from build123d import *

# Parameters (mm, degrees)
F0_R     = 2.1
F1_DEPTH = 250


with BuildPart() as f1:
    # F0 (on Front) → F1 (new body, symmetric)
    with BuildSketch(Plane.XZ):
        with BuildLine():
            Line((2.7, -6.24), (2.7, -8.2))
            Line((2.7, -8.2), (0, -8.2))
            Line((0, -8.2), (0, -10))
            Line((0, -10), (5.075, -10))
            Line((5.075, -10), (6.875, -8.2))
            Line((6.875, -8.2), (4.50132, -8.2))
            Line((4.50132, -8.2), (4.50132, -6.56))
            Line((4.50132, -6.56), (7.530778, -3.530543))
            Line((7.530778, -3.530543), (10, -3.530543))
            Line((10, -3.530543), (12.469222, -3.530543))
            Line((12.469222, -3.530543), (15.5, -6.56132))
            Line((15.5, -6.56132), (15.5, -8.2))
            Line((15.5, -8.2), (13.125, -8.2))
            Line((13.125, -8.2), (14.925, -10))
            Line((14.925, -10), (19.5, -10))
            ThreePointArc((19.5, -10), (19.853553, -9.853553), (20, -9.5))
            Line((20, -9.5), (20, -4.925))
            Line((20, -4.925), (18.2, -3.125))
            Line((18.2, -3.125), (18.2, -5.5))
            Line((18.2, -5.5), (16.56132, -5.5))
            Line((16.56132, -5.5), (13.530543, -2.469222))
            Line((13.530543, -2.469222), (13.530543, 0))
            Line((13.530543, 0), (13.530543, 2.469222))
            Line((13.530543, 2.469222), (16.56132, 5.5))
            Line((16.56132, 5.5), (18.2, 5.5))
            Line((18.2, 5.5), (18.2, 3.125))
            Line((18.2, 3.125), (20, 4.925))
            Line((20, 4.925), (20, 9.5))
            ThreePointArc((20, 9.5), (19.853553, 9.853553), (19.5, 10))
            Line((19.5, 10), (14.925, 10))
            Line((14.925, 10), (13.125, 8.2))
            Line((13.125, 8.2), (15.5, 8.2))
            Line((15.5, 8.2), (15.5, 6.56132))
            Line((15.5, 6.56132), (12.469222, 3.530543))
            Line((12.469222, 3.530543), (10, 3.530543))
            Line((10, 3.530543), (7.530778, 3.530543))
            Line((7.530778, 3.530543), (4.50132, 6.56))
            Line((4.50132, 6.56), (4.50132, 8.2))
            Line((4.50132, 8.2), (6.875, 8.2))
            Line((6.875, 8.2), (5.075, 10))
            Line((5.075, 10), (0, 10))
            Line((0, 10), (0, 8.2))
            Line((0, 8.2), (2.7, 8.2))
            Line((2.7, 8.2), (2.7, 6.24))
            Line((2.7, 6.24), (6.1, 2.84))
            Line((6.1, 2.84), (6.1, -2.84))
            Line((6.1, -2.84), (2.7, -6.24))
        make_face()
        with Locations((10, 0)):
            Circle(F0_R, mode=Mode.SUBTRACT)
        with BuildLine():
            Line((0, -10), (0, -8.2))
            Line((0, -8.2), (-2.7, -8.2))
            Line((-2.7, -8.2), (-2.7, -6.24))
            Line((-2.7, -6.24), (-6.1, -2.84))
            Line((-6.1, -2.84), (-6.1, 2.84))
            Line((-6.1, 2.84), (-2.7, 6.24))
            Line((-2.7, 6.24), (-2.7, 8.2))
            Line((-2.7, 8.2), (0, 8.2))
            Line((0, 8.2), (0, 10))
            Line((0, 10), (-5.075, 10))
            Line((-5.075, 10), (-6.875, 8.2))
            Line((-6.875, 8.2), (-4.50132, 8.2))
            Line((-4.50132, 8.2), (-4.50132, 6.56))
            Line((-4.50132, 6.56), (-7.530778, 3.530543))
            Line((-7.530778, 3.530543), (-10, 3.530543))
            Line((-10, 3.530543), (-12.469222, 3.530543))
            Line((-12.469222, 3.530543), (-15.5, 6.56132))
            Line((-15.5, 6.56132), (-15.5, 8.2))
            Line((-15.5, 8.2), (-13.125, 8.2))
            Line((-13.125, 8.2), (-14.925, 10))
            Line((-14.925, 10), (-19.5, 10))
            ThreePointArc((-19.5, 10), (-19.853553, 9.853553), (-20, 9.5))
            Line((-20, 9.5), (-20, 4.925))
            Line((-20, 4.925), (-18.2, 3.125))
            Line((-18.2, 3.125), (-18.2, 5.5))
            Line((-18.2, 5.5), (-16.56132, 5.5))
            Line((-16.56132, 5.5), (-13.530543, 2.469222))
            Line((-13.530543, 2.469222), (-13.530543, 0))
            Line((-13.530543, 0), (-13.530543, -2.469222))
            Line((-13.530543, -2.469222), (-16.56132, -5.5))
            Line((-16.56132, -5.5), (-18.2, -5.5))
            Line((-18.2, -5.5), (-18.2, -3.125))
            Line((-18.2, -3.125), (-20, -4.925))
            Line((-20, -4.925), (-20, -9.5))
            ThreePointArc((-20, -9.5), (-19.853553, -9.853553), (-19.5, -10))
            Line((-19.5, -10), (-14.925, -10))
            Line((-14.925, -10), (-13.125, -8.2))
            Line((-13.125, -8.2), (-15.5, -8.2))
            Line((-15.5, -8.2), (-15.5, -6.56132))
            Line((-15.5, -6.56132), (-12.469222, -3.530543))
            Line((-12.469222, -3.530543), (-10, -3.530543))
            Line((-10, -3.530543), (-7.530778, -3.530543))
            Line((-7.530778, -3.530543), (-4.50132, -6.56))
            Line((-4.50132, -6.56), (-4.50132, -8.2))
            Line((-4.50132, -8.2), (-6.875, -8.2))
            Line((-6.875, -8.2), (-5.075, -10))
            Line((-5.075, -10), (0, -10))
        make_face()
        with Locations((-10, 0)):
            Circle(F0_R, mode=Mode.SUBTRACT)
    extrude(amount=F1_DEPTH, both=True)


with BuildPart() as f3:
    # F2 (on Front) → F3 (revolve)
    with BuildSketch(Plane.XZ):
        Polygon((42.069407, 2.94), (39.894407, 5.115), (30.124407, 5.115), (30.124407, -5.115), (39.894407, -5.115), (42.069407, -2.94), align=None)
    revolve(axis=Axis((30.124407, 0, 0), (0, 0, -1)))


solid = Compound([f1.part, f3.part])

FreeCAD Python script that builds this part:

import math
import FreeCAD as App
import Part
import Sketcher
Q = App.Units.Quantity


def add_polygon(sketch, points):
    """Adds a closed chain of lines whose ends are joined by coincident constraints."""
    first, n = sketch.GeometryCount, len(points)
    for a, b in zip(points, points[1:] + points[:1]):
        sketch.addGeometry(Part.LineSegment(App.Vector(*a, 0), App.Vector(*b, 0)), False)
    for i in range(n):
        sketch.addConstraint(Sketcher.Constraint("Coincident", first + i, 2, first + (i + 1) % n, 1))

doc = App.newDocument("Part")
body = doc.addObject("PartDesign::Body", "Body")

# Sketch on XZ plane
sketch1 = body.newObject("Sketcher::SketchObject", "Sketch")
sketch1.AttachmentSupport = (doc.getObject("XZ_Plane"), [""])
sketch1.MapMode = "FlatFace"
sketch1.addGeometry(Part.LineSegment(App.Vector(5.1, -10, 0), App.Vector(6.9, -8.2, 0)), False)  # 0
sketch1.addGeometry(Part.LineSegment(App.Vector(6.9, -8.2, 0), App.Vector(4.5, -8.2, 0)), False)  # 1
sketch1.addGeometry(Part.LineSegment(App.Vector(4.5, -8.2, 0), App.Vector(4.5, -6.6, 0)), False)  # 2
sketch1.addGeometry(Part.LineSegment(App.Vector(4.5, -6.6, 0), App.Vector(7.5, -3.5, 0)), False)  # 3
sketch1.addGeometry(Part.LineSegment(App.Vector(7.5, -3.5, 0), App.Vector(12.5, -3.5, 0)), False)  # 4
sketch1.addGeometry(Part.LineSegment(App.Vector(12.5, -3.5, 0), App.Vector(15.5, -6.6, 0)), False)  # 5
sketch1.addGeometry(Part.LineSegment(App.Vector(15.5, -6.6, 0), App.Vector(15.5, -8.2, 0)), False)  # 6
sketch1.addGeometry(Part.LineSegment(App.Vector(15.5, -8.2, 0), App.Vector(13.1, -8.2, 0)), False)  # 7
sketch1.addGeometry(Part.LineSegment(App.Vector(13.1, -8.2, 0), App.Vector(14.9, -10, 0)), False)  # 8
sketch1.addGeometry(Part.LineSegment(App.Vector(14.9, -10, 0), App.Vector(19.5, -10, 0)), False)  # 9
sketch1.addGeometry(Part.ArcOfCircle(Part.Circle(App.Vector(19.5, -9.5, 0), App.Vector(0, 0, 1), 0.5), math.radians(-90), math.radians(0)), False)  # 10
sketch1.addGeometry(Part.LineSegment(App.Vector(20, -9.5, 0), App.Vector(20, -4.9, 0)), False)  # 11
sketch1.addGeometry(Part.LineSegment(App.Vector(20, -4.9, 0), App.Vector(18.2, -3.1, 0)), False)  # 12
sketch1.addGeometry(Part.LineSegment(App.Vector(18.2, -3.1, 0), App.Vector(18.2, -5.5, 0)), False)  # 13
sketch1.addGeometry(Part.LineSegment(App.Vector(18.2, -5.5, 0), App.Vector(16.6, -5.5, 0)), False)  # 14
sketch1.addGeometry(Part.LineSegment(App.Vector(16.6, -5.5, 0), App.Vector(13.5, -2.5, 0)), False)  # 15
sketch1.addGeometry(Part.LineSegment(App.Vector(13.5, -2.5, 0), App.Vector(13.5, 2.5, 0)), False)  # 16
sketch1.addGeometry(Part.LineSegment(App.Vector(13.5, 2.5, 0), App.Vector(16.6, 5.5, 0)), False)  # 17
sketch1.addGeometry(Part.LineSegment(App.Vector(16.6, 5.5, 0), App.Vector(18.2, 5.5, 0)), False)  # 18
sketch1.addGeometry(Part.LineSegment(App.Vector(18.2, 5.5, 0), App.Vector(18.2, 3.1, 0)), False)  # 19
sketch1.addGeometry(Part.LineSegment(App.Vector(18.2, 3.1, 0), App.Vector(20, 4.9, 0)), False)  # 20
sketch1.addGeometry(Part.LineSegment(App.Vector(20, 4.9, 0), App.Vector(20, 9.5, 0)), False)  # 21
sketch1.addGeometry(Part.ArcOfCircle(Part.Circle(App.Vector(19.5, 9.5, 0), App.Vector(0, 0, 1), 0.5), math.radians(0), math.radians(90)), False)  # 22
sketch1.addGeometry(Part.LineSegment(App.Vector(19.5, 10, 0), App.Vector(14.9, 10, 0)), False)  # 23
sketch1.addGeometry(Part.LineSegment(App.Vector(14.9, 10, 0), App.Vector(13.1, 8.2, 0)), False)  # 24
sketch1.addGeometry(Part.LineSegment(App.Vector(13.1, 8.2, 0), App.Vector(15.5, 8.2, 0)), False)  # 25
sketch1.addGeometry(Part.LineSegment(App.Vector(15.5, 8.2, 0), App.Vector(15.5, 6.6, 0)), False)  # 26
sketch1.addGeometry(Part.LineSegment(App.Vector(15.5, 6.6, 0), App.Vector(12.5, 3.5, 0)), False)  # 27
sketch1.addGeometry(Part.LineSegment(App.Vector(12.5, 3.5, 0), App.Vector(7.5, 3.5, 0)), False)  # 28
sketch1.addGeometry(Part.LineSegment(App.Vector(7.5, 3.5, 0), App.Vector(4.5, 6.6, 0)), False)  # 29
sketch1.addGeometry(Part.LineSegment(App.Vector(4.5, 6.6, 0), App.Vector(4.5, 8.2, 0)), False)  # 30
sketch1.addGeometry(Part.LineSegment(App.Vector(4.5, 8.2, 0), App.Vector(6.9, 8.2, 0)), False)  # 31
sketch1.addGeometry(Part.LineSegment(App.Vector(6.9, 8.2, 0), App.Vector(5.1, 10, 0)), False)  # 32
sketch1.addGeometry(Part.LineSegment(App.Vector(5.1, 10, 0), App.Vector(-5.1, 10, 0)), False)  # 33
sketch1.addGeometry(Part.LineSegment(App.Vector(-5.1, 10, 0), App.Vector(-6.9, 8.2, 0)), False)  # 34
sketch1.addGeometry(Part.LineSegment(App.Vector(-6.9, 8.2, 0), App.Vector(-4.5, 8.2, 0)), False)  # 35
sketch1.addGeometry(Part.LineSegment(App.Vector(-4.5, 8.2, 0), App.Vector(-4.5, 6.6, 0)), False)  # 36
sketch1.addGeometry(Part.LineSegment(App.Vector(-4.5, 6.6, 0), App.Vector(-7.5, 3.5, 0)), False)  # 37
sketch1.addGeometry(Part.LineSegment(App.Vector(-7.5, 3.5, 0), App.Vector(-12.5, 3.5, 0)), False)  # 38
sketch1.addGeometry(Part.LineSegment(App.Vector(-12.5, 3.5, 0), App.Vector(-15.5, 6.6, 0)), False)  # 39
sketch1.addGeometry(Part.LineSegment(App.Vector(-15.5, 6.6, 0), App.Vector(-15.5, 8.2, 0)), False)  # 40
sketch1.addGeometry(Part.LineSegment(App.Vector(-15.5, 8.2, 0), App.Vector(-13.1, 8.2, 0)), False)  # 41
sketch1.addGeometry(Part.LineSegment(App.Vector(-13.1, 8.2, 0), App.Vector(-14.9, 10, 0)), False)  # 42
sketch1.addGeometry(Part.LineSegment(App.Vector(-14.9, 10, 0), App.Vector(-19.5, 10, 0)), False)  # 43
sketch1.addGeometry(Part.ArcOfCircle(Part.Circle(App.Vector(-19.5, 9.5, 0), App.Vector(0, 0, 1), 0.5), math.radians(90), math.radians(180)), False)  # 44
sketch1.addGeometry(Part.LineSegment(App.Vector(-20, 9.5, 0), App.Vector(-20, 4.9, 0)), False)  # 45
sketch1.addGeometry(Part.LineSegment(App.Vector(-20, 4.9, 0), App.Vector(-18.2, 3.1, 0)), False)  # 46
sketch1.addGeometry(Part.LineSegment(App.Vector(-18.2, 3.1, 0), App.Vector(-18.2, 5.5, 0)), False)  # 47
sketch1.addGeometry(Part.LineSegment(App.Vector(-18.2, 5.5, 0), App.Vector(-16.6, 5.5, 0)), False)  # 48
sketch1.addGeometry(Part.LineSegment(App.Vector(-16.6, 5.5, 0), App.Vector(-13.5, 2.5, 0)), False)  # 49
sketch1.addGeometry(Part.LineSegment(App.Vector(-13.5, 2.5, 0), App.Vector(-13.5, -2.5, 0)), False)  # 50
sketch1.addGeometry(Part.LineSegment(App.Vector(-13.5, -2.5, 0), App.Vector(-16.6, -5.5, 0)), False)  # 51
sketch1.addGeometry(Part.LineSegment(App.Vector(-16.6, -5.5, 0), App.Vector(-18.2, -5.5, 0)), False)  # 52
sketch1.addGeometry(Part.LineSegment(App.Vector(-18.2, -5.5, 0), App.Vector(-18.2, -3.1, 0)), False)  # 53
sketch1.addGeometry(Part.LineSegment(App.Vector(-18.2, -3.1, 0), App.Vector(-20, -4.9, 0)), False)  # 54
sketch1.addGeometry(Part.LineSegment(App.Vector(-20, -4.9, 0), App.Vector(-20, -9.5, 0)), False)  # 55
sketch1.addGeometry(Part.ArcOfCircle(Part.Circle(App.Vector(-19.5, -9.5, 0), App.Vector(0, 0, 1), 0.5), math.radians(-180), math.radians(-90)), False)  # 56
sketch1.addGeometry(Part.LineSegment(App.Vector(-19.5, -10, 0), App.Vector(-14.9, -10, 0)), False)  # 57
sketch1.addGeometry(Part.LineSegment(App.Vector(-14.9, -10, 0), App.Vector(-13.1, -8.2, 0)), False)  # 58
sketch1.addGeometry(Part.LineSegment(App.Vector(-13.1, -8.2, 0), App.Vector(-15.5, -8.2, 0)), False)  # 59
sketch1.addGeometry(Part.LineSegment(App.Vector(-15.5, -8.2, 0), App.Vector(-15.5, -6.6, 0)), False)  # 60
sketch1.addGeometry(Part.LineSegment(App.Vector(-15.5, -6.6, 0), App.Vector(-12.5, -3.5, 0)), False)  # 61
sketch1.addGeometry(Part.LineSegment(App.Vector(-12.5, -3.5, 0), App.Vector(-7.5, -3.5, 0)), False)  # 62
sketch1.addGeometry(Part.LineSegment(App.Vector(-7.5, -3.5, 0), App.Vector(-4.5, -6.6, 0)), False)  # 63
sketch1.addGeometry(Part.LineSegment(App.Vector(-4.5, -6.6, 0), App.Vector(-4.5, -8.2, 0)), False)  # 64
sketch1.addGeometry(Part.LineSegment(App.Vector(-4.5, -8.2, 0), App.Vector(-6.9, -8.2, 0)), False)  # 65
sketch1.addGeometry(Part.LineSegment(App.Vector(-6.9, -8.2, 0), App.Vector(-5.1, -10, 0)), False)  # 66
sketch1.addGeometry(Part.LineSegment(App.Vector(-5.1, -10, 0), App.Vector(5.1, -10, 0)), False)  # 67
sketch1.addGeometry(Part.Circle(App.Vector(-10, 0, 0), App.Vector(0, 0, 1), 2.1), False)  # 68
add_polygon(sketch1, [(2.7, -6.2), (2.7, -8.2), (-2.7, -8.2), (-2.7, -6.2), (-6.1, -2.8), (-6.1, 2.8), (-2.7, 6.2), (-2.7, 8.2), (2.7, 8.2), (2.7, 6.2), (6.1, 2.8), (6.1, -2.8)])  # lines 69-80
sketch1.addGeometry(Part.Circle(App.Vector(10, 0, 0), App.Vector(0, 0, 1), 2.1), False)  # 81
sketch1.addConstraint([
    Sketcher.Constraint("Coincident", 0, 2, 1, 1),
    Sketcher.Constraint("Coincident", 1, 2, 2, 1),
    Sketcher.Constraint("Coincident", 2, 2, 3, 1),
    Sketcher.Constraint("Coincident", 3, 2, 4, 1),
    Sketcher.Constraint("Coincident", 4, 2, 5, 1),
    Sketcher.Constraint("Coincident", 5, 2, 6, 1),
    Sketcher.Constraint("Coincident", 6, 2, 7, 1),
    Sketcher.Constraint("Coincident", 7, 2, 8, 1),
    Sketcher.Constraint("Coincident", 8, 2, 9, 1),
    Sketcher.Constraint("Coincident", 9, 2, 10, 1),
    Sketcher.Constraint("Coincident", 10, 2, 11, 1),
    Sketcher.Constraint("Coincident", 11, 2, 12, 1),
    Sketcher.Constraint("Coincident", 12, 2, 13, 1),
    Sketcher.Constraint("Coincident", 13, 2, 14, 1),
    Sketcher.Constraint("Coincident", 14, 2, 15, 1),
    Sketcher.Constraint("Coincident", 15, 2, 16, 1),
    Sketcher.Constraint("Coincident", 16, 2, 17, 1),
    Sketcher.Constraint("Coincident", 17, 2, 18, 1),
    Sketcher.Constraint("Coincident", 18, 2, 19, 1),
    Sketcher.Constraint("Coincident", 19, 2, 20, 1),
    Sketcher.Constraint("Coincident", 20, 2, 21, 1),
    Sketcher.Constraint("Coincident", 21, 2, 22, 1),
    Sketcher.Constraint("Coincident", 22, 2, 23, 1),
    Sketcher.Constraint("Coincident", 23, 2, 24, 1),
    Sketcher.Constraint("Coincident", 24, 2, 25, 1),
    Sketcher.Constraint("Coincident", 25, 2, 26, 1),
    Sketcher.Constraint("Coincident", 26, 2, 27, 1),
    Sketcher.Constraint("Coincident", 27, 2, 28, 1),
    Sketcher.Constraint("Coincident", 28, 2, 29, 1),
    Sketcher.Constraint("Coincident", 29, 2, 30, 1),
    Sketcher.Constraint("Coincident", 30, 2, 31, 1),
    Sketcher.Constraint("Coincident", 31, 2, 32, 1),
    Sketcher.Constraint("Coincident", 32, 2, 33, 1),
    Sketcher.Constraint("Coincident", 33, 2, 34, 1),
    Sketcher.Constraint("Coincident", 34, 2, 35, 1),
    Sketcher.Constraint("Coincident", 35, 2, 36, 1),
    Sketcher.Constraint("Coincident", 36, 2, 37, 1),
    Sketcher.Constraint("Coincident", 37, 2, 38, 1),
    Sketcher.Constraint("Coincident", 38, 2, 39, 1),
    Sketcher.Constraint("Coincident", 39, 2, 40, 1),
    Sketcher.Constraint("Coincident", 40, 2, 41, 1),
    Sketcher.Constraint("Coincident", 41, 2, 42, 1),
    Sketcher.Constraint("Coincident", 42, 2, 43, 1),
    Sketcher.Constraint("Coincident", 43, 2, 44, 1),
    Sketcher.Constraint("Coincident", 44, 2, 45, 1),
    Sketcher.Constraint("Coincident", 45, 2, 46, 1),
    Sketcher.Constraint("Coincident", 46, 2, 47, 1),
    Sketcher.Constraint("Coincident", 47, 2, 48, 1),
    Sketcher.Constraint("Coincident", 48, 2, 49, 1),
    Sketcher.Constraint("Coincident", 49, 2, 50, 1),
    Sketcher.Constraint("Coincident", 50, 2, 51, 1),
    Sketcher.Constraint("Coincident", 51, 2, 52, 1),
    Sketcher.Constraint("Coincident", 52, 2, 53, 1),
    Sketcher.Constraint("Coincident", 53, 2, 54, 1),
    Sketcher.Constraint("Coincident", 54, 2, 55, 1),
    Sketcher.Constraint("Coincident", 55, 2, 56, 1),
    Sketcher.Constraint("Coincident", 56, 2, 57, 1),
    Sketcher.Constraint("Coincident", 57, 2, 58, 1),
    Sketcher.Constraint("Coincident", 58, 2, 59, 1),
    Sketcher.Constraint("Coincident", 59, 2, 60, 1),
    Sketcher.Constraint("Coincident", 60, 2, 61, 1),
    Sketcher.Constraint("Coincident", 61, 2, 62, 1),
    Sketcher.Constraint("Coincident", 62, 2, 63, 1),
    Sketcher.Constraint("Coincident", 63, 2, 64, 1),
    Sketcher.Constraint("Coincident", 64, 2, 65, 1),
    Sketcher.Constraint("Coincident", 65, 2, 66, 1),
    Sketcher.Constraint("Coincident", 66, 2, 67, 1),
    Sketcher.Constraint("Coincident", 67, 2, 0, 1),
    Sketcher.Constraint("Horizontal", 1),
    Sketcher.Constraint("Vertical", 2),
    Sketcher.Constraint("Horizontal", 4),
    Sketcher.Constraint("Vertical", 6),
    Sketcher.Constraint("Horizontal", 7),
    Sketcher.Constraint("Horizontal", 9),
    Sketcher.Constraint("Vertical", 11),
    Sketcher.Constraint("Vertical", 13),
    Sketcher.Constraint("Horizontal", 14),
    Sketcher.Constraint("Vertical", 16),
    Sketcher.Constraint("Horizontal", 18),
    Sketcher.Constraint("Vertical", 19),
    Sketcher.Constraint("Vertical", 21),
    Sketcher.Constraint("Horizontal", 23),
    Sketcher.Constraint("Horizontal", 25),
    Sketcher.Constraint("Vertical", 26),
    Sketcher.Constraint("Horizontal", 28),
    Sketcher.Constraint("Vertical", 30),
    Sketcher.Constraint("Horizontal", 31),
    Sketcher.Constraint("Horizontal", 33),
    Sketcher.Constraint("Horizontal", 35),
    Sketcher.Constraint("Vertical", 36),
    Sketcher.Constraint("Horizontal", 38),
    Sketcher.Constraint("Vertical", 40),
    Sketcher.Constraint("Horizontal", 41),
    Sketcher.Constraint("Horizontal", 43),
    Sketcher.Constraint("Vertical", 45),
    Sketcher.Constraint("Vertical", 47),
    Sketcher.Constraint("Horizontal", 48),
    Sketcher.Constraint("Vertical", 50),
    Sketcher.Constraint("Horizontal", 52),
    Sketcher.Constraint("Vertical", 53),
    Sketcher.Constraint("Vertical", 55),
    Sketcher.Constraint("Horizontal", 57),
    Sketcher.Constraint("Horizontal", 59),
    Sketcher.Constraint("Vertical", 60),
    Sketcher.Constraint("Horizontal", 62),
    Sketcher.Constraint("Vertical", 64),
    Sketcher.Constraint("Horizontal", 65),
    Sketcher.Constraint("Horizontal", 67),
    Sketcher.Constraint("Vertical", 69),
    Sketcher.Constraint("Horizontal", 70),
    Sketcher.Constraint("Vertical", 71),
    Sketcher.Constraint("Vertical", 73),
    Sketcher.Constraint("Vertical", 75),
    Sketcher.Constraint("Horizontal", 76),
    Sketcher.Constraint("Vertical", 77),
    Sketcher.Constraint("Vertical", 79),
    Sketcher.Constraint("Equal", 10, 22),
    Sketcher.Constraint("Equal", 22, 44),
    Sketcher.Constraint("Equal", 44, 56),
    Sketcher.Constraint("Equal", 68, 81),
    Sketcher.Constraint("Symmetric", 10, 3, 44, 3, -1, 1),
    Sketcher.Constraint("Symmetric", 22, 3, 56, 3, -1, 1),
    Sketcher.Constraint("Symmetric", 68, 3, 81, 3, -1, 1),
    Sketcher.Constraint("Symmetric", 0, 2, 34, 2, -1, 1),
    Sketcher.Constraint("Symmetric", 2, 2, 36, 2, -1, 1),
    Sketcher.Constraint("Symmetric", 3, 2, 37, 2, -1, 1),
    Sketcher.Constraint("Symmetric", 5, 2, 39, 2, -1, 1),
    Sketcher.Constraint("Symmetric", 7, 2, 41, 2, -1, 1),
    Sketcher.Constraint("Symmetric", 12, 2, 46, 2, -1, 1),
    Sketcher.Constraint("Symmetric", 14, 2, 48, 2, -1, 1),
    Sketcher.Constraint("Symmetric", 15, 2, 49, 2, -1, 1),
    Sketcher.Constraint("Symmetric", 17, 2, 51, 2, -1, 1),
    Sketcher.Constraint("Symmetric", 19, 2, 53, 2, -1, 1),
    Sketcher.Constraint("Symmetric", 24, 2, 58, 2, -1, 1),
    Sketcher.Constraint("Symmetric", 26, 2, 60, 2, -1, 1),
    Sketcher.Constraint("Symmetric", 27, 2, 61, 2, -1, 1),
    Sketcher.Constraint("Symmetric", 29, 2, 63, 2, -1, 1),
    Sketcher.Constraint("Symmetric", 31, 2, 65, 2, -1, 1),
    Sketcher.Constraint("Symmetric", 32, 2, 66, 2, -1, 1),
    Sketcher.Constraint("Symmetric", 69, 2, 75, 2, -1, 1),
    Sketcher.Constraint("Symmetric", 71, 2, 77, 2, -1, 1),
    Sketcher.Constraint("Symmetric", 72, 2, 78, 2, -1, 1),
    Sketcher.Constraint("Symmetric", 22, 3, 44, 3, -2),
    Sketcher.Constraint("Symmetric", 31, 2, 34, 2, -2),
    Sketcher.Constraint("Symmetric", 29, 2, 36, 2, -2),
    Sketcher.Constraint("Symmetric", 28, 2, 37, 2, -2),
    Sketcher.Constraint("Symmetric", 26, 2, 39, 2, -2),
    Sketcher.Constraint("Symmetric", 24, 2, 41, 2, -2),
    Sketcher.Constraint("Symmetric", 19, 2, 46, 2, -2),
    Sketcher.Constraint("Symmetric", 17, 2, 48, 2, -2),
    Sketcher.Constraint("Symmetric", 74, 2, 77, 2, -2),
    Sketcher.Constraint("PointOnObject", 68, 3, -1),
    Sketcher.Constraint("Parallel", 0, 3),
    Sketcher.Constraint("Perpendicular", 3, 5),
    Sketcher.Constraint("Parallel", 5, 8),
    Sketcher.Constraint("Parallel", 8, 12),
    Sketcher.Constraint("Parallel", 12, 15),
    Sketcher.Constraint("Perpendicular", 15, 17),
    Sketcher.Constraint("Parallel", 17, 20),
    Sketcher.Constraint("Parallel", 20, 24),
    Sketcher.Constraint("Parallel", 24, 27),
    Sketcher.Constraint("Perpendicular", 27, 29),
    Sketcher.Constraint("Parallel", 29, 32),
    Sketcher.Constraint("Perpendicular", 32, 34),
    Sketcher.Constraint("Perpendicular", 37, 39),
    Sketcher.Constraint("Parallel", 39, 42),
    Sketcher.Constraint("Parallel", 42, 46),
    Sketcher.Constraint("Perpendicular", 49, 51),
    Sketcher.Constraint("Parallel", 51, 54),
    Sketcher.Constraint("Parallel", 54, 58),
    Sketcher.Constraint("Perpendicular", 61, 63),
    Sketcher.Constraint("Parallel", 66, 72),
    Sketcher.Constraint("Perpendicular", 72, 74),
    Sketcher.Constraint("Perpendicular", 78, 80),
    Sketcher.Constraint("Horizontal", 1, 2, 6, 2),
    Sketcher.Constraint("Horizontal", 56, 3, 10, 2),
    Sketcher.Constraint("Horizontal", 44, 3, 21, 2),
    Sketcher.Constraint("Horizontal", 23, 2, 32, 2),
    Sketcher.Constraint("Horizontal", 21, 2, 44, 2),
    Sketcher.Constraint("Horizontal", 10, 2, 55, 2),
    Sketcher.Constraint("Horizontal", 65, 2, 69, 2),
    Sketcher.Constraint("Horizontal", 72, 2, 79, 2),
    Sketcher.Constraint("Vertical", 22, 3, 9, 2),
    Sketcher.Constraint("Vertical", 9, 2, 22, 2),
    Sketcher.Constraint("Vertical", 56, 3, 43, 2),
    Sketcher.Constraint("Vertical", 43, 2, 56, 2),
    Sketcher.Constraint("Equal", 52, 6),
    Sketcher.Constraint("Equal", 57, 11),
    Sketcher.Constraint("Equal", 59, 13),
    Sketcher.Constraint("Equal", 62, 16),
    Sketcher.Constraint("Equal", 8, 12),
    Sketcher.Constraint("Equal", 5, 15),
    Sketcher.Constraint("Diameter", 68, Q("4.2 mm")),
    Sketcher.Constraint("Radius", 10, Q("0.500001 mm")),
    Sketcher.Constraint("DistanceX", 70, 2, 70, 1, Q("5.4 mm")),
    Sketcher.Constraint("DistanceX", 68, 3, -1, 1, Q("10 mm")),
    Sketcher.Constraint("DistanceY", 8, 2, -1, 1, Q("10 mm")),
    Sketcher.Constraint("DistanceX", -1, 1, 10, 2, Q("20 mm")),
    Sketcher.Constraint("DistanceX", 33, 2, 33, 1, Q("10.15 mm")),
    Sketcher.Constraint("DistanceY", 2, 1, 2, 2, Q("1.64 mm")),
    Sketcher.Constraint("DistanceY", 69, 2, 69, 1, Q("1.96 mm")),
    Sketcher.Constraint("DistanceY", 73, 1, 73, 2, Q("5.68 mm")),
    Sketcher.Constraint("DistanceY", 0, 2, -1, 1, Q("8.2 mm")),
    Sketcher.Constraint("DistanceX", -1, 1, 5, 2, Q("15.5 mm")),
    Sketcher.Constraint("DistanceX", 7, 2, 7, 1, Q("2.375 mm")),
    Sketcher.Constraint("Distance", 3, Q("4.2843 mm")),
    Sketcher.Constraint("DistanceX", 1, 2, 1, 1, Q("2.37368 mm")),
])
pad1 = body.newObject("PartDesign::Pad", "Pad")
pad1.Profile = sketch1
pad1.Length = 500
pad1.Midplane = True
body2 = doc.addObject("PartDesign::Body", "Body001")

# Sketch on XZ plane
sketch2 = body2.newObject("Sketcher::SketchObject", "Sketch001")
sketch2.AttachmentSupport = (doc.getObject("XZ_Plane001"), [""])
sketch2.MapMode = "FlatFace"
add_polygon(sketch2, [(42.1, 2.9), (39.9, 5.1), (30.1, 5.1), (30.1, -5.1), (39.9, -5.1), (42.1, -2.9)])  # lines 0-5
sketch2.addGeometry(Part.LineSegment(App.Vector(30.1, 5.1, 0), App.Vector(30.1, -5.1, 0)), True)  # axis
sketch2.addConstraint([
    Sketcher.Constraint("Horizontal", 1),
    Sketcher.Constraint("Vertical", 2),
    Sketcher.Constraint("Horizontal", 3),
    Sketcher.Constraint("Vertical", 5),
    Sketcher.Constraint("Vertical", 6),
    Sketcher.Constraint("Coincident", 6, 1, 1, 2),
    Sketcher.Constraint("Symmetric", 0, 2, 3, 2, -1),
    Sketcher.Constraint("Perpendicular", 0, 4),
    Sketcher.Constraint("Horizontal", 3, 2, 6, 2),
    Sketcher.Constraint("Equal", 0, 4),
    Sketcher.Constraint("DistanceX", 1, 2, 1, 1, Q("9.77 mm")),
    Sketcher.Constraint("DistanceY", 2, 2, 2, 1, Q("10.23 mm")),
    Sketcher.Constraint("DistanceY", 5, 1, 5, 2, Q("5.88 mm")),
    Sketcher.Constraint("DistanceX", -1, 1, 0, 2, Q("39.894407 mm")),
])
revolution = body2.newObject("PartDesign::Revolution", "Revolution")
revolution.Profile = sketch2
revolution.ReferenceAxis = (sketch2, ["Axis0"])
revolution.Angle = 360

doc.recompute()
